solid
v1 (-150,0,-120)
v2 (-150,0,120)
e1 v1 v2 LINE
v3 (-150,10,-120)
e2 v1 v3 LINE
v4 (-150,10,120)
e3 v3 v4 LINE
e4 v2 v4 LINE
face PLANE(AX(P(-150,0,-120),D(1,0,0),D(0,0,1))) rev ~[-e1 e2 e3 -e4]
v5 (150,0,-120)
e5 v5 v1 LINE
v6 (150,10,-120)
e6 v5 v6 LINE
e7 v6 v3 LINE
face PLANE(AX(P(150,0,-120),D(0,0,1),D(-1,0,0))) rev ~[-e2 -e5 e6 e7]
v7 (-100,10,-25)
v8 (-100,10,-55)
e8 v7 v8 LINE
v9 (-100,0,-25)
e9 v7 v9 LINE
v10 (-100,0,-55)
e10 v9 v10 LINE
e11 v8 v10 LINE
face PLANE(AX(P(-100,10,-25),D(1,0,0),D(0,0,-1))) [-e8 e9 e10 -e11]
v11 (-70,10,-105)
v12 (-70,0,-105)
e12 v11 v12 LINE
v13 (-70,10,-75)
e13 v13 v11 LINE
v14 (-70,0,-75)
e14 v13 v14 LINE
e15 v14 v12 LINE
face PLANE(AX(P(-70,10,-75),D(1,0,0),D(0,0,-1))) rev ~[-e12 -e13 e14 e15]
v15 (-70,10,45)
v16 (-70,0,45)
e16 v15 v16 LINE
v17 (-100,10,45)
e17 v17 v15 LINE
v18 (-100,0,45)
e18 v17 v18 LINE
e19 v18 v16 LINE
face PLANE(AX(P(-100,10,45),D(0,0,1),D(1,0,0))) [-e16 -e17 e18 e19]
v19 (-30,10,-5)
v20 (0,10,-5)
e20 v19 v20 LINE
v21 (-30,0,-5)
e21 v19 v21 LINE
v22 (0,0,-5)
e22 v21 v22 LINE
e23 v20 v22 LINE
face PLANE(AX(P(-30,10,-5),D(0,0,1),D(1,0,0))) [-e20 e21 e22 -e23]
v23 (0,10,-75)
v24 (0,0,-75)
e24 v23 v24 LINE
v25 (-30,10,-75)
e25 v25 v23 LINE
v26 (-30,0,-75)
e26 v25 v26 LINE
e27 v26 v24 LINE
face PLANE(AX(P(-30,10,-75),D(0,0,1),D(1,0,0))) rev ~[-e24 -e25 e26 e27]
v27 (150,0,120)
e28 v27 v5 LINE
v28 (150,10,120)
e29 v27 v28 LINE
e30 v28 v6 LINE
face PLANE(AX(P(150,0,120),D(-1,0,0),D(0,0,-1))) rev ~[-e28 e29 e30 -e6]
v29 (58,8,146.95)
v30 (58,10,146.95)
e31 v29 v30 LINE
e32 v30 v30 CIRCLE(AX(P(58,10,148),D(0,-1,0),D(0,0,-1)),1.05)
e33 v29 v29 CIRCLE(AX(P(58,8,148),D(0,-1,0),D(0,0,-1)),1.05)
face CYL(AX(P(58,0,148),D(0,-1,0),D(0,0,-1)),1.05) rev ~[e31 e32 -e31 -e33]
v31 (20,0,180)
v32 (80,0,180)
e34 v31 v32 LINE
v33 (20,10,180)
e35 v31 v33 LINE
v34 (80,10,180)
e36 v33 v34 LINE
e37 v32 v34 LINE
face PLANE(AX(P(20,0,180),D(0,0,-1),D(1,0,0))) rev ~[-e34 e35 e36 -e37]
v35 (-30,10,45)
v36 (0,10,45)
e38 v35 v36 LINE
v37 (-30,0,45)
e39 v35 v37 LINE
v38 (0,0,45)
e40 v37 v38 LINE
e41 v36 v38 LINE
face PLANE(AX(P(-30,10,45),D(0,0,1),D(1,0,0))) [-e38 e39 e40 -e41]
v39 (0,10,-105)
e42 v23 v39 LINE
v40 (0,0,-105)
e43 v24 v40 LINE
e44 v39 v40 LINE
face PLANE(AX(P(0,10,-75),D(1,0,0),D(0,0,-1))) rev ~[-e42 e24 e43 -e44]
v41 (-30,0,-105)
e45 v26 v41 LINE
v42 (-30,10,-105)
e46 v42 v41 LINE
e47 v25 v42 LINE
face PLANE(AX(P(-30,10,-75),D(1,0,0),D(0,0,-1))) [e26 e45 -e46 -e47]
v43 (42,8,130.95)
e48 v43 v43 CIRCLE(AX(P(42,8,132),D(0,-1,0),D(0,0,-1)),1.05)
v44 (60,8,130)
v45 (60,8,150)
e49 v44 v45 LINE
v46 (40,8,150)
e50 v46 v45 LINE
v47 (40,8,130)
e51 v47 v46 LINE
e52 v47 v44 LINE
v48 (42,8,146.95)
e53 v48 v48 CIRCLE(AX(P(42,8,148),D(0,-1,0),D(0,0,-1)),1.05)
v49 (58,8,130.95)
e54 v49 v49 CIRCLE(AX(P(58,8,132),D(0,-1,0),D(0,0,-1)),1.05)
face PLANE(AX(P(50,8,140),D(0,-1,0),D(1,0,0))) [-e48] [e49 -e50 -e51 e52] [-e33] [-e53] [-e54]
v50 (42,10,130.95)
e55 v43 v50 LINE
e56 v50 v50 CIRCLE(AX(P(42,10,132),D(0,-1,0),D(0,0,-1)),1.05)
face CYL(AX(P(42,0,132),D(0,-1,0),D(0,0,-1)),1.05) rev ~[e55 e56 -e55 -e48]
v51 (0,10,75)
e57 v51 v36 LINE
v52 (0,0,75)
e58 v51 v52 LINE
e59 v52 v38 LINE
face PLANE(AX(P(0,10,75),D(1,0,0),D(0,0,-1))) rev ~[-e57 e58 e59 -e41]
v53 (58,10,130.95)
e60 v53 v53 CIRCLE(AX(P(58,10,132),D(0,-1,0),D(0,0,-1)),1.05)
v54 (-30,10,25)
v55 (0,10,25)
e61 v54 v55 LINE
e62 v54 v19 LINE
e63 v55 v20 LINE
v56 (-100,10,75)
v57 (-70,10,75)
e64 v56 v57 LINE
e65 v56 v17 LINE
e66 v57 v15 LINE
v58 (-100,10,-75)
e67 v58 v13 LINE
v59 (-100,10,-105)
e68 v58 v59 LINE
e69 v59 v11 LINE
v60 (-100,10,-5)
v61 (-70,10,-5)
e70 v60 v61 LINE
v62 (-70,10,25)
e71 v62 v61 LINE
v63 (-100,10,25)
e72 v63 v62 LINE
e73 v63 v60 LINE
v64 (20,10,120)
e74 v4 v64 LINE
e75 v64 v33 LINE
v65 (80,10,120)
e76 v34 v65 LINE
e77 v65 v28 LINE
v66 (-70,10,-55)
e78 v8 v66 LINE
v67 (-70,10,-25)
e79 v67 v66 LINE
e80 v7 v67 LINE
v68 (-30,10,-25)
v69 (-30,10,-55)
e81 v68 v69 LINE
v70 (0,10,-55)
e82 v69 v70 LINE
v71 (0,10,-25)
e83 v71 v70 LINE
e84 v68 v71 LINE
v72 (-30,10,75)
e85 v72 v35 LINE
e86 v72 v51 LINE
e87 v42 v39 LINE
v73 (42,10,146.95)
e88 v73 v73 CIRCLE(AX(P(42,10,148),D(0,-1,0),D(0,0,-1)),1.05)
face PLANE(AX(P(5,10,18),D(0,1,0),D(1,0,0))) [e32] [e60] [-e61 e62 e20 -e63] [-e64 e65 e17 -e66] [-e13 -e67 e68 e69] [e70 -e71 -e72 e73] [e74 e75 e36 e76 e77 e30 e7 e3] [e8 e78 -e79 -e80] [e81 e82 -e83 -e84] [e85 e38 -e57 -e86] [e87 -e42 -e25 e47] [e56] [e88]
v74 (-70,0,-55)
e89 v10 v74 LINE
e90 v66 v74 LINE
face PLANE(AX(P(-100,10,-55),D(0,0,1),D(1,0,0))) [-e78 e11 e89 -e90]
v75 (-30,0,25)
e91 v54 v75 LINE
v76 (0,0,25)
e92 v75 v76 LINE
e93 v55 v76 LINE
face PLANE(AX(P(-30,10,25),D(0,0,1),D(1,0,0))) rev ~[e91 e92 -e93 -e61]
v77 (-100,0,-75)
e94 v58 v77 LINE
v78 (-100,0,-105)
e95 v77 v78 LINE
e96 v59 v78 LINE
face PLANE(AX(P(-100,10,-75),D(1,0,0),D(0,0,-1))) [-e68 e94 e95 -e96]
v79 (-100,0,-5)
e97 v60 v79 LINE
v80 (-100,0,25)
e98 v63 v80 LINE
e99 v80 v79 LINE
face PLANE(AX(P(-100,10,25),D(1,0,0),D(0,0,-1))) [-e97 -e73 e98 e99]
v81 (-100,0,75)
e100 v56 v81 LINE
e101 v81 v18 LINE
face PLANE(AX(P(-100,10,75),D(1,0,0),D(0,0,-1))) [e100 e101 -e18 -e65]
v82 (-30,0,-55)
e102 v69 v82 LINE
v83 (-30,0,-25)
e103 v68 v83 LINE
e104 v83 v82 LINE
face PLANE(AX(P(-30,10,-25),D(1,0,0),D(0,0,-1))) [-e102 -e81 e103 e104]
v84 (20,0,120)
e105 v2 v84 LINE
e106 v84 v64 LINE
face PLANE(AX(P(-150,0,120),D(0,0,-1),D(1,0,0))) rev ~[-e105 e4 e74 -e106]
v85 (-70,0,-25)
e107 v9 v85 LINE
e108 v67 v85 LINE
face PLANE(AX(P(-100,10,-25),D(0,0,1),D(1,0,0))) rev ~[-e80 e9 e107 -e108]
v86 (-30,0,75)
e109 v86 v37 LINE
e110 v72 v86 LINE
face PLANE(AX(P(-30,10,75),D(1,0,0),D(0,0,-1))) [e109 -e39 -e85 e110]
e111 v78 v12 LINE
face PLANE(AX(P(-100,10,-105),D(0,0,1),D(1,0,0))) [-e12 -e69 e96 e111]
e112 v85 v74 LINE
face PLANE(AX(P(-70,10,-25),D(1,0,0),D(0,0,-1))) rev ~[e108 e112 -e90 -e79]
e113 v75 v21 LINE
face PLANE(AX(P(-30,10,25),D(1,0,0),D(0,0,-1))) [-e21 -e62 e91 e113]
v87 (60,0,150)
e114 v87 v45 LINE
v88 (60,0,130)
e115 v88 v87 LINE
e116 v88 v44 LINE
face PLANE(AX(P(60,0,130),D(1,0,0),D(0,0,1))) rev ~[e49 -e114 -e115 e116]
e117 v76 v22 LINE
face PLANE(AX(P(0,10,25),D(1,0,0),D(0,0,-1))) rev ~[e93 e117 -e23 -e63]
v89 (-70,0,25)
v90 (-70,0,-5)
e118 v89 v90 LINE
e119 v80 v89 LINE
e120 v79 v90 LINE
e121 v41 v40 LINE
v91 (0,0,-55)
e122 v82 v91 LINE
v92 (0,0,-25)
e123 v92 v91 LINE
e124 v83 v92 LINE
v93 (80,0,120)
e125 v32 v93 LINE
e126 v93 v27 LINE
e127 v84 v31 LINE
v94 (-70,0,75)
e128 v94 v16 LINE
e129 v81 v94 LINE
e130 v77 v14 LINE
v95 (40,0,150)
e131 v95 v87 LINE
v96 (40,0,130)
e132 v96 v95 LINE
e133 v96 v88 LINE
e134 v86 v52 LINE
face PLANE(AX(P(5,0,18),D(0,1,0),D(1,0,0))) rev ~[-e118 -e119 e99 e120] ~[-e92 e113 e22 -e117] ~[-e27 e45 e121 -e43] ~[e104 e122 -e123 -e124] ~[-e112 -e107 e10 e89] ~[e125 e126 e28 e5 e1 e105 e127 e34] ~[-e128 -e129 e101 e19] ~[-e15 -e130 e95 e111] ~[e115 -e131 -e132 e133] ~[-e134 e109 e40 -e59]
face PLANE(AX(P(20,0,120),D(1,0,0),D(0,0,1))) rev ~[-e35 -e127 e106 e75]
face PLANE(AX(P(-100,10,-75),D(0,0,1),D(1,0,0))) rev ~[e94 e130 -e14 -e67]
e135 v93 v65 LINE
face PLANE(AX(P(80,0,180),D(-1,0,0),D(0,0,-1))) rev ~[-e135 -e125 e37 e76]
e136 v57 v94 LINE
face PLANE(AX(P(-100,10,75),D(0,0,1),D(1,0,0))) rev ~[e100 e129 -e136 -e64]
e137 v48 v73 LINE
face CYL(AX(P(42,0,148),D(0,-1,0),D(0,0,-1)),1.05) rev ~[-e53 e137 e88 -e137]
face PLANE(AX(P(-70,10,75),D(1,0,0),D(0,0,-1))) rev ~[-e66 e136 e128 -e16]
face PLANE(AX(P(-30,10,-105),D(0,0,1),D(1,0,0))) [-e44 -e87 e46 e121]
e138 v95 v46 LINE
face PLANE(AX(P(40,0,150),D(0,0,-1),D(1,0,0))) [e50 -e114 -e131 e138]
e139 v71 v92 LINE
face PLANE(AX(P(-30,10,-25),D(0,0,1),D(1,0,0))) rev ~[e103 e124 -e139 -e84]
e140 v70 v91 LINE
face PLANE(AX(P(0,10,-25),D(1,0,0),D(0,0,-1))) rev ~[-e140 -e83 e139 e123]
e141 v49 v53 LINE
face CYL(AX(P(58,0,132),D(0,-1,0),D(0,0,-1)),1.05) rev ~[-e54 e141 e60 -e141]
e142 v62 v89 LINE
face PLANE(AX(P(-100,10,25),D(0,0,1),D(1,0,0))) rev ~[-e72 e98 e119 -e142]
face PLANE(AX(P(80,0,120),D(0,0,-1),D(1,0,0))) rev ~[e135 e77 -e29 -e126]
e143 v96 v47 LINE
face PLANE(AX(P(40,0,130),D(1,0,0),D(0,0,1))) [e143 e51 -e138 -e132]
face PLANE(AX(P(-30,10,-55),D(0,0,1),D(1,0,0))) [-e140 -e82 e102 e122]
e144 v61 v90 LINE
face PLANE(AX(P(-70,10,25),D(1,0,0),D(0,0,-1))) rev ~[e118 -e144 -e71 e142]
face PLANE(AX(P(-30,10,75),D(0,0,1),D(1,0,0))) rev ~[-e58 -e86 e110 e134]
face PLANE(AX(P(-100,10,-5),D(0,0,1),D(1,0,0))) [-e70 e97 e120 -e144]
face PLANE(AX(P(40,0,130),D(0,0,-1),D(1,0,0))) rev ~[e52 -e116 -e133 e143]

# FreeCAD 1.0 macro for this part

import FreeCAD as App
import Part
import Sketcher


def add_polygon(sketch, points):
    """Adds a closed chain of lines whose ends are joined by coincident constraints."""
    first, n = sketch.GeometryCount, len(points)
    for a, b in zip(points, points[1:] + points[:1]):
        sketch.addGeometry(Part.LineSegment(App.Vector(*a, 0), App.Vector(*b, 0)), False)
    for i in range(n):
        sketch.addConstraint(Sketcher.Constraint("Coincident", first + i, 2, first + (i + 1) % n, 1))

doc = App.newDocument("Part")
params = doc.addObject("Spreadsheet::Sheet", "Params")
for row, (alias, value) in enumerate([
    ("sketch1_width", "170 mm"),
    ("sketch1_width2", "60 mm"),
    ("sketch1_width3", "70 mm"),
    ("sketch1_height", "240 mm"),
    ("pad1_length", "10 mm"),
    ("sketch2_diameter", "2.1 mm"),
    ("sketch2_width", "20 mm"),
    ("pocket1_length", "8 mm"),
    ("sketch3_diameter", "2.1 mm"),
    ("sketch4_width", "30 mm"),
], start=1):
    params.set(f"A{row}", alias)
    params.set(f"B{row}", "=" + value)
    params.setAlias(f"B{row}", alias)

body = doc.addObject("PartDesign::Body", "Body")

sketch1 = body.newObject("Sketcher::SketchObject", "Sketch")
sketch1.AttachmentSupport = (doc.getObject("XZ_Plane"), [""])
sketch1.MapMode = "FlatFace"
add_polygon(sketch1, [(-150, 120), (20, 120), (20, 180), (80, 180), (80, 120), (150, 120), (150, -120), (-150, -120)])
sketch1.addConstraint(Sketcher.Constraint("Horizontal", 0))
sketch1.addConstraint(Sketcher.Constraint("Vertical", 1))
sketch1.addConstraint(Sketcher.Constraint("Horizontal", 2))
sketch1.addConstraint(Sketcher.Constraint("Vertical", 3))
sketch1.addConstraint(Sketcher.Constraint("Horizontal", 4))
sketch1.addConstraint(Sketcher.Constraint("Vertical", 5))
sketch1.addConstraint(Sketcher.Constraint("Horizontal", 6))
sketch1.addConstraint(Sketcher.Constraint("Vertical", 7))
sketch1.addConstraint(Sketcher.Constraint("Symmetric", 4, 2, 6, 2, -1, 1))
sketch1.addConstraint(Sketcher.Constraint("Horizontal", 0, 2, 3, 2))
sketch1.addConstraint(Sketcher.Constraint("Equal", 2, 1))
sketch1.addConstraint(Sketcher.Constraint("DistanceX", 0, 1, 0, 2, 170.0))
sketch1.addConstraint(Sketcher.Constraint("DistanceX", 2, 1, 2, 2, 60.0))
sketch1.addConstraint(Sketcher.Constraint("DistanceX", 4, 1, 4, 2, 70.0))
sketch1.addConstraint(Sketcher.Constraint("DistanceY", 5, 2, 5, 1, 240.0))
sketch1.setExpression("Constraints[19]", "Params.sketch1_width")
sketch1.setExpression("Constraints[20]", "Params.sketch1_width2")
sketch1.setExpression("Constraints[21]", "Params.sketch1_width3")
sketch1.setExpression("Constraints[22]", "Params.sketch1_height")
pad1 = body.newObject("PartDesign::Pad", "Pad")
pad1.Profile = sketch1
pad1.setExpression("Length", "Params.pad1_length")
pad1.Reversed = True

sketch2 = body.newObject("Sketcher::SketchObject", "Sketch001")
sketch2.AttachmentSupport = (doc.getObject("XZ_Plane"), [""])
sketch2.MapMode = "FlatFace"
add_polygon(sketch2, [(40, 150), (40, 130), (60, 130), (60, 150)])
sketch2.addGeometry(Part.Circle(App.Vector(42, 132, 0), App.Vector(0, 0, 1), 1.1), False)
sketch2.addGeometry(Part.Circle(App.Vector(58, 132, 0), App.Vector(0, 0, 1), 1.1), False)
sketch2.addGeometry(Part.Circle(App.Vector(42, 148, 0), App.Vector(0, 0, 1), 1.1), False)
sketch2.addGeometry(Part.Circle(App.Vector(58, 148, 0), App.Vector(0, 0, 1), 1.1), False)
sketch2.addConstraint(Sketcher.Constraint("Vertical", 0))
sketch2.addConstraint(Sketcher.Constraint("Horizontal", 1))
sketch2.addConstraint(Sketcher.Constraint("Vertical", 2))
sketch2.addConstraint(Sketcher.Constraint("Horizontal", 3))
sketch2.addConstraint(Sketcher.Constraint("Equal", 4, 5))
sketch2.addConstraint(Sketcher.Constraint("Equal", 5, 6))
sketch2.addConstraint(Sketcher.Constraint("Equal", 6, 7))
sketch2.addConstraint(Sketcher.Constraint("Horizontal", 4, 3, 5, 3))
sketch2.addConstraint(Sketcher.Constraint("Horizontal", 6, 3, 7, 3))
sketch2.addConstraint(Sketcher.Constraint("Vertical", 4, 3, 6, 3))
sketch2.addConstraint(Sketcher.Constraint("Vertical", 5, 3, 7, 3))
sketch2.addConstraint(Sketcher.Constraint("Equal", 3, 0))
sketch2.addConstraint(Sketcher.Constraint("Diameter", 4, 2.1))
sketch2.addConstraint(Sketcher.Constraint("DistanceX", 1, 1, 1, 2, 20.0))
sketch2.addConstraint(Sketcher.Constraint("DistanceX", -1, 1, 4, 3, 42.0))
sketch2.addConstraint(Sketcher.Constraint("DistanceY", -1, 1, 4, 3, 132.0))
sketch2.addConstraint(Sketcher.Constraint("DistanceX", -1, 1, 5, 3, 58.0))
sketch2.addConstraint(Sketcher.Constraint("DistanceY", -1, 1, 6, 3, 148.0))
sketch2.addConstraint(Sketcher.Constraint("DistanceX", -1, 1, 0, 2, 40.0))
sketch2.addConstraint(Sketcher.Constraint("DistanceY", -1, 1, 0, 2, 130.0))
sketch2.setExpression("Constraints[16]", "Params.sketch2_diameter")
sketch2.setExpression("Constraints[17]", "Params.sketch2_width")
pocket1 = body.newObject("PartDesign::Pocket", "Pocket")
pocket1.Profile = sketch2
pocket1.setExpression("Length", "Params.pocket1_length")

sketch3 = body.newObject("Sketcher::SketchObject", "Sketch002")
sketch3.AttachmentSupport = (doc.getObject("XZ_Plane"), [""])
sketch3.MapMode = "FlatFace"
sketch3.addGeometry(Part.Circle(App.Vector(42, 132, 0), App.Vector(0, 0, 1), 1.1), False)
sketch3.addGeometry(Part.Circle(App.Vector(42, 148, 0), App.Vector(0, 0, 1), 1.1), False)
sketch3.addGeometry(Part.Circle(App.Vector(58, 132, 0), App.Vector(0, 0, 1), 1.1), False)
sketch3.addGeometry(Part.Circle(App.Vector(58, 148, 0), App.Vector(0, 0, 1), 1.1), False)
sketch3.addConstraint(Sketcher.Constraint("Equal", 0, 1))
sketch3.addConstraint(Sketcher.Constraint("Equal", 1, 2))
sketch3.addConstraint(Sketcher.Constraint("Equal", 2, 3))
sketch3.addConstraint(Sketcher.Constraint("Horizontal", 0, 3, 2, 3))
sketch3.addConstraint(Sketcher.Constraint("Horizontal", 1, 3, 3, 3))
sketch3.addConstraint(Sketcher.Constraint("Vertical", 0, 3, 1, 3))
sketch3.addConstraint(Sketcher.Constraint("Vertical", 2, 3, 3, 3))
sketch3.addConstraint(Sketcher.Constraint("Diameter", 0, 2.1))
sketch3.addConstraint(Sketcher.Constraint("DistanceX", -1, 1, 0, 3, 42.0))
sketch3.addConstraint(Sketcher.Constraint("DistanceY", -1, 1, 0, 3, 132.0))
sketch3.addConstraint(Sketcher.Constraint("DistanceY", -1, 1, 1, 3, 148.0))
sketch3.addConstraint(Sketcher.Constraint("DistanceX", -1, 1, 2, 3, 58.0))
sketch3.setExpression("Constraints[7]", "Params.sketch3_diameter")
pocket2 = body.newObject("PartDesign::Pocket", "Pocket001")
pocket2.Profile = sketch3
pocket2.Type = "ThroughAll"

sketch4 = body.newObject("Sketcher::SketchObject", "Sketch003")
sketch4.AttachmentSupport = (doc.getObject("XZ_Plane"), [""])
sketch4.MapMode = "FlatFace"
sketch4.AttachmentOffset = App.Placement(App.Vector(0, 0, -10), App.Rotation())
add_polygon(sketch4, [(-100, 45), (-100, 75), (-70, 75), (-70, 45)])
add_polygon(sketch4, [(-100, -5), (-100, 25), (-70, 25), (-70, -5)])
add_polygon(sketch4, [(-100, -55), (-100, -25), (-70, -25), (-70, -55)])
add_polygon(sketch4, [(-100, -105), (-100, -75), (-70, -75), (-70, -105)])
add_polygon(sketch4, [(-30, 45), (-30, 75), (0, 75), (0, 45)])
add_polygon(sketch4, [(-30, -5), (-30, 25), (0, 25), (0, -5)])
add_polygon(sketch4, [(-30, -55), (-30, -25), (0, -25), (0, -55)])
add_polygon(sketch4, [(-30, -105), (-30, -75), (0, -75), (0, -105)])
sketch4.addConstraint(Sketcher.Constraint("Vertical", 0))
sketch4.addConstraint(Sketcher.Constraint("Horizontal", 1))
sketch4.addConstraint(Sketcher.Constraint("Vertical", 2))
sketch4.addConstraint(Sketcher.Constraint("Horizontal", 3))
sketch4.addConstraint(Sketcher.Constraint("Vertical", 4))
sketch4.addConstraint(Sketcher.Constraint("Horizontal", 5))
sketch4.addConstraint(Sketcher.Constraint("Vertical", 6))
sketch4.addConstraint(Sketcher.Constraint("Horizontal", 7))
sketch4.addConstraint(Sketcher.Constraint("Vertical", 8))
sketch4.addConstraint(Sketcher.Constraint("Horizontal", 9))
sketch4.addConstraint(Sketcher.Constraint("Vertical", 10))
sketch4.addConstraint(Sketcher.Constraint("Horizontal", 11))
sketch4.addConstraint(Sketcher.Constraint("Vertical", 12))
sketch4.addConstraint(Sketcher.Constraint("Horizontal", 13))
sketch4.addConstraint(Sketcher.Constraint("Vertical", 14))
sketch4.addConstraint(Sketcher.Constraint("Horizontal", 15))
sketch4.addConstraint(Sketcher.Constraint("Vertical", 16))
sketch4.addConstraint(Sketcher.Constraint("Horizontal", 17))
sketch4.addConstraint(Sketcher.Constraint("Vertical", 18))
sketch4.addConstraint(Sketcher.Constraint("Horizontal", 19))
sketch4.addConstraint(Sketcher.Constraint("Vertical", 20))
sketch4.addConstraint(Sketcher.Constraint("Horizontal", 21))
sketch4.addConstraint(Sketcher.Constraint("Vertical", 22))
sketch4.addConstraint(Sketcher.Constraint("Horizontal", 23))
sketch4.addConstraint(Sketcher.Constraint("Vertical", 24))
sketch4.addConstraint(Sketcher.Constraint("Horizontal", 25))
sketch4.addConstraint(Sketcher.Constraint("Vertical", 26))
sketch4.addConstraint(Sketcher.Constraint("Horizontal", 27))
sketch4.addConstraint(Sketcher.Constraint("Vertical", 28))
sketch4.addConstraint(Sketcher.Constraint("Horizontal", 29))
sketch4.addConstraint(Sketcher.Constraint("Vertical", 30))
sketch4.addConstraint(Sketcher.Constraint("Horizontal", 31))
sketch4.addConstraint(Sketcher.Constraint("Symmetric", 21, 2, 25, 2, -1, 1))
sketch4.addConstraint(Sketcher.Constraint("Symmetric", 17, 2, 29, 2, -1, 1))
sketch4.addConstraint(Sketcher.Constraint("Symmetric", 4, 2, 8, 2, -1))
sketch4.addConstraint(Sketcher.Constraint("Symmetric", 0, 2, 12, 2, -1))
sketch4.addConstraint(Sketcher.Constraint("PointOnObject", 17, 2, -2))
sketch4.addConstraint(Sketcher.Constraint("PointOnObject", 21, 2, -2))
sketch4.addConstraint(Sketcher.Constraint("Horizontal", 1, 2, 16, 2))
sketch4.addConstraint(Sketcher.Constraint("Horizontal", 3, 2, 18, 2))
sketch4.addConstraint(Sketcher.Constraint("Horizontal", 5, 2, 20, 2))
sketch4.addConstraint(Sketcher.Constraint("Horizontal", 7, 2, 22, 2))
sketch4.addConstraint(Sketcher.Constraint("Horizontal", 11, 2, 26, 2))
sketch4.addConstraint(Sketcher.Constraint("Horizontal", 15, 2, 30, 2))
sketch4.addConstraint(Sketcher.Constraint("Vertical", 3, 2, 4, 2))
sketch4.addConstraint(Sketcher.Constraint("Vertical", 2, 2, 5, 2))
sketch4.addConstraint(Sketcher.Constraint("Vertical", 6, 2, 9, 2))
sketch4.addConstraint(Sketcher.Constraint("Vertical", 10, 2, 13, 2))
sketch4.addConstraint(Sketcher.Constraint("Vertical", 19, 2, 20, 2))
sketch4.addConstraint(Sketcher.Constraint("Vertical", 23, 2, 24, 2))
sketch4.addConstraint(Sketcher.Constraint("Vertical", 27, 2, 28, 2))
sketch4.addConstraint(Sketcher.Constraint("Equal", 15, 17))
sketch4.addConstraint(Sketcher.Constraint("Equal", 31, 0))
sketch4.addConstraint(Sketcher.Constraint("Equal", 2, 4))
sketch4.addConstraint(Sketcher.Constraint("Equal", 6, 8))
sketch4.addConstraint(Sketcher.Constraint("Equal", 10, 12))
sketch4.addConstraint(Sketcher.Constraint("DistanceX", 1, 1, 1, 2, 30.0))
sketch4.addConstraint(Sketcher.Constraint("DistanceX", 0, 2, -1, 1, 100.0))
sketch4.addConstraint(Sketcher.Constraint("DistanceY", -1, 1, 0, 2, 75.0))
sketch4.addConstraint(Sketcher.Constraint("DistanceY", -1, 1, 4, 2, 25.0))
sketch4.setExpression("Constraints[88]", "Params.sketch4_width")
pocket3 = body.newObject("PartDesign::Pocket", "Pocket002")
pocket3.Profile = sketch4
pocket3.Type = "ThroughAll"
pocket3.Reversed = True

doc.recompute()
